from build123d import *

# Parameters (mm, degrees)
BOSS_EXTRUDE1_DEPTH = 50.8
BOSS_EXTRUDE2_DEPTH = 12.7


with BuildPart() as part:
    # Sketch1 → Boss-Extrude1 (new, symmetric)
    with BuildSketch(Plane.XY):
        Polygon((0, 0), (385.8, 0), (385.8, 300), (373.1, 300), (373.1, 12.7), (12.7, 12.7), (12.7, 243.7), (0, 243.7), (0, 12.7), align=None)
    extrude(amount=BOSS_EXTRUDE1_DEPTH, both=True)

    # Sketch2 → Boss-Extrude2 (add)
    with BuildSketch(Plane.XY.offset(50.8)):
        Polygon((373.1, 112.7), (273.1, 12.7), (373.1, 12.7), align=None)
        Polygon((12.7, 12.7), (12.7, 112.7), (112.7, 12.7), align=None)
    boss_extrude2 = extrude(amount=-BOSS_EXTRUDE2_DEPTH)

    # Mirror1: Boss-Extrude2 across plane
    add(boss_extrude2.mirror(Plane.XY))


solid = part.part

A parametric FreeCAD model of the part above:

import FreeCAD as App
import Part
import Sketcher


def add_polygon(sketch, points):
    """Adds a closed chain of lines whose ends are joined by coincident constraints."""
    first, n = sketch.GeometryCount, len(points)
    for a, b in zip(points, points[1:] + points[:1]):
        sketch.addGeometry(Part.LineSegment(App.Vector(*a, 0), App.Vector(*b, 0)), False)
    for i in range(n):
        sketch.addConstraint(Sketcher.Constraint("Coincident", first + i, 2, first + (i + 1) % n, 1))

doc = App.newDocument("Part")
body = doc.addObject("PartDesign::Body", "Body")

# Sketch on XY plane
sketch1 = body.newObject("Sketcher::SketchObject", "Sketch")
sketch1.AttachmentSupport = (doc.getObject("XY_Plane"), [""])
sketch1.MapMode = "FlatFace"
add_polygon(sketch1, [(0, 0), (386, 0), (386, 300), (373, 300), (373, 13), (13, 13), (13, 244), (0, 244)])  # lines 0-7
sketch1.addConstraint([
    Sketcher.Constraint("Horizontal", 0),
    Sketcher.Constraint("Vertical", 1),
    Sketcher.Constraint("Horizontal", 2),
    Sketcher.Constraint("Vertical", 3),
    Sketcher.Constraint("Horizontal", 4),
    Sketcher.Constraint("Vertical", 5),
    Sketcher.Constraint("Horizontal", 6),
    Sketcher.Constraint("Vertical", 7),
    Sketcher.Constraint("Coincident", 7, 2, -1, 1),
    Sketcher.Constraint("Equal", 2, 6),
    Sketcher.Constraint("DistanceY", 1, 1, 1, 2, 300.0),
    Sketcher.Constraint("DistanceY", 5, 1, 5, 2, 231.0),
    Sketcher.Constraint("DistanceX", 0, 1, 0, 2, 385.8),
    Sketcher.Constraint("DistanceX", 2, 2, 2, 1, 12.7),
    Sketcher.Constraint("DistanceY", 3, 2, 3, 1, 287.3),
])
pad1 = body.newObject("PartDesign::Pad", "Pad")
pad1.Profile = sketch1
pad1.Length = 101.6
pad1.Midplane = True

# Sketch on XY plane
sketch2 = body.newObject("Sketcher::SketchObject", "Sketch001")
sketch2.AttachmentSupport = (doc.getObject("XY_Plane"), [""])
sketch2.MapMode = "FlatFace"
sketch2.AttachmentOffset = App.Placement(App.Vector(0, 0, 50.8), App.Rotation())
add_polygon(sketch2, [(373, 113), (273, 13), (373, 13)])  # lines 0-2
add_polygon(sketch2, [(13, 113), (13, 13), (113, 13)])  # lines 3-5
sketch2.addConstraint([
    Sketcher.Constraint("Horizontal", 1),
    Sketcher.Constraint("Vertical", 2),
    Sketcher.Constraint("Vertical", 3),
    Sketcher.Constraint("Horizontal", 4),
    Sketcher.Constraint("Perpendicular", 0, 5),
    Sketcher.Constraint("Horizontal", 1, 2, 3, 2),
    Sketcher.Constraint("Horizontal", 2, 2, 5, 2),
    Sketcher.Constraint("Equal", 1, 4),
    Sketcher.Constraint("DistanceX", 1, 1, 1, 2, 100.0),
    Sketcher.Constraint("DistanceX", -1, 1, 0, 2, 273.1),
    Sketcher.Constraint("DistanceY", -1, 1, 0, 2, 12.7),
    Sketcher.Constraint("DistanceX", -1, 1, 3, 2, 12.7),
])
pad2 = body.newObject("PartDesign::Pad", "Pad001")
pad2.Profile = sketch2
pad2.Length = 12.7
pad2.Reversed = True
doc.recompute()

mirrored = body.newObject("PartDesign::Mirrored", "Mirrored")
mirrored.Originals = [pad2]
mirrored.MirrorPlane = (doc.getObject("XY_Plane"), [""])
body.Tip = mirrored

doc.recompute()
